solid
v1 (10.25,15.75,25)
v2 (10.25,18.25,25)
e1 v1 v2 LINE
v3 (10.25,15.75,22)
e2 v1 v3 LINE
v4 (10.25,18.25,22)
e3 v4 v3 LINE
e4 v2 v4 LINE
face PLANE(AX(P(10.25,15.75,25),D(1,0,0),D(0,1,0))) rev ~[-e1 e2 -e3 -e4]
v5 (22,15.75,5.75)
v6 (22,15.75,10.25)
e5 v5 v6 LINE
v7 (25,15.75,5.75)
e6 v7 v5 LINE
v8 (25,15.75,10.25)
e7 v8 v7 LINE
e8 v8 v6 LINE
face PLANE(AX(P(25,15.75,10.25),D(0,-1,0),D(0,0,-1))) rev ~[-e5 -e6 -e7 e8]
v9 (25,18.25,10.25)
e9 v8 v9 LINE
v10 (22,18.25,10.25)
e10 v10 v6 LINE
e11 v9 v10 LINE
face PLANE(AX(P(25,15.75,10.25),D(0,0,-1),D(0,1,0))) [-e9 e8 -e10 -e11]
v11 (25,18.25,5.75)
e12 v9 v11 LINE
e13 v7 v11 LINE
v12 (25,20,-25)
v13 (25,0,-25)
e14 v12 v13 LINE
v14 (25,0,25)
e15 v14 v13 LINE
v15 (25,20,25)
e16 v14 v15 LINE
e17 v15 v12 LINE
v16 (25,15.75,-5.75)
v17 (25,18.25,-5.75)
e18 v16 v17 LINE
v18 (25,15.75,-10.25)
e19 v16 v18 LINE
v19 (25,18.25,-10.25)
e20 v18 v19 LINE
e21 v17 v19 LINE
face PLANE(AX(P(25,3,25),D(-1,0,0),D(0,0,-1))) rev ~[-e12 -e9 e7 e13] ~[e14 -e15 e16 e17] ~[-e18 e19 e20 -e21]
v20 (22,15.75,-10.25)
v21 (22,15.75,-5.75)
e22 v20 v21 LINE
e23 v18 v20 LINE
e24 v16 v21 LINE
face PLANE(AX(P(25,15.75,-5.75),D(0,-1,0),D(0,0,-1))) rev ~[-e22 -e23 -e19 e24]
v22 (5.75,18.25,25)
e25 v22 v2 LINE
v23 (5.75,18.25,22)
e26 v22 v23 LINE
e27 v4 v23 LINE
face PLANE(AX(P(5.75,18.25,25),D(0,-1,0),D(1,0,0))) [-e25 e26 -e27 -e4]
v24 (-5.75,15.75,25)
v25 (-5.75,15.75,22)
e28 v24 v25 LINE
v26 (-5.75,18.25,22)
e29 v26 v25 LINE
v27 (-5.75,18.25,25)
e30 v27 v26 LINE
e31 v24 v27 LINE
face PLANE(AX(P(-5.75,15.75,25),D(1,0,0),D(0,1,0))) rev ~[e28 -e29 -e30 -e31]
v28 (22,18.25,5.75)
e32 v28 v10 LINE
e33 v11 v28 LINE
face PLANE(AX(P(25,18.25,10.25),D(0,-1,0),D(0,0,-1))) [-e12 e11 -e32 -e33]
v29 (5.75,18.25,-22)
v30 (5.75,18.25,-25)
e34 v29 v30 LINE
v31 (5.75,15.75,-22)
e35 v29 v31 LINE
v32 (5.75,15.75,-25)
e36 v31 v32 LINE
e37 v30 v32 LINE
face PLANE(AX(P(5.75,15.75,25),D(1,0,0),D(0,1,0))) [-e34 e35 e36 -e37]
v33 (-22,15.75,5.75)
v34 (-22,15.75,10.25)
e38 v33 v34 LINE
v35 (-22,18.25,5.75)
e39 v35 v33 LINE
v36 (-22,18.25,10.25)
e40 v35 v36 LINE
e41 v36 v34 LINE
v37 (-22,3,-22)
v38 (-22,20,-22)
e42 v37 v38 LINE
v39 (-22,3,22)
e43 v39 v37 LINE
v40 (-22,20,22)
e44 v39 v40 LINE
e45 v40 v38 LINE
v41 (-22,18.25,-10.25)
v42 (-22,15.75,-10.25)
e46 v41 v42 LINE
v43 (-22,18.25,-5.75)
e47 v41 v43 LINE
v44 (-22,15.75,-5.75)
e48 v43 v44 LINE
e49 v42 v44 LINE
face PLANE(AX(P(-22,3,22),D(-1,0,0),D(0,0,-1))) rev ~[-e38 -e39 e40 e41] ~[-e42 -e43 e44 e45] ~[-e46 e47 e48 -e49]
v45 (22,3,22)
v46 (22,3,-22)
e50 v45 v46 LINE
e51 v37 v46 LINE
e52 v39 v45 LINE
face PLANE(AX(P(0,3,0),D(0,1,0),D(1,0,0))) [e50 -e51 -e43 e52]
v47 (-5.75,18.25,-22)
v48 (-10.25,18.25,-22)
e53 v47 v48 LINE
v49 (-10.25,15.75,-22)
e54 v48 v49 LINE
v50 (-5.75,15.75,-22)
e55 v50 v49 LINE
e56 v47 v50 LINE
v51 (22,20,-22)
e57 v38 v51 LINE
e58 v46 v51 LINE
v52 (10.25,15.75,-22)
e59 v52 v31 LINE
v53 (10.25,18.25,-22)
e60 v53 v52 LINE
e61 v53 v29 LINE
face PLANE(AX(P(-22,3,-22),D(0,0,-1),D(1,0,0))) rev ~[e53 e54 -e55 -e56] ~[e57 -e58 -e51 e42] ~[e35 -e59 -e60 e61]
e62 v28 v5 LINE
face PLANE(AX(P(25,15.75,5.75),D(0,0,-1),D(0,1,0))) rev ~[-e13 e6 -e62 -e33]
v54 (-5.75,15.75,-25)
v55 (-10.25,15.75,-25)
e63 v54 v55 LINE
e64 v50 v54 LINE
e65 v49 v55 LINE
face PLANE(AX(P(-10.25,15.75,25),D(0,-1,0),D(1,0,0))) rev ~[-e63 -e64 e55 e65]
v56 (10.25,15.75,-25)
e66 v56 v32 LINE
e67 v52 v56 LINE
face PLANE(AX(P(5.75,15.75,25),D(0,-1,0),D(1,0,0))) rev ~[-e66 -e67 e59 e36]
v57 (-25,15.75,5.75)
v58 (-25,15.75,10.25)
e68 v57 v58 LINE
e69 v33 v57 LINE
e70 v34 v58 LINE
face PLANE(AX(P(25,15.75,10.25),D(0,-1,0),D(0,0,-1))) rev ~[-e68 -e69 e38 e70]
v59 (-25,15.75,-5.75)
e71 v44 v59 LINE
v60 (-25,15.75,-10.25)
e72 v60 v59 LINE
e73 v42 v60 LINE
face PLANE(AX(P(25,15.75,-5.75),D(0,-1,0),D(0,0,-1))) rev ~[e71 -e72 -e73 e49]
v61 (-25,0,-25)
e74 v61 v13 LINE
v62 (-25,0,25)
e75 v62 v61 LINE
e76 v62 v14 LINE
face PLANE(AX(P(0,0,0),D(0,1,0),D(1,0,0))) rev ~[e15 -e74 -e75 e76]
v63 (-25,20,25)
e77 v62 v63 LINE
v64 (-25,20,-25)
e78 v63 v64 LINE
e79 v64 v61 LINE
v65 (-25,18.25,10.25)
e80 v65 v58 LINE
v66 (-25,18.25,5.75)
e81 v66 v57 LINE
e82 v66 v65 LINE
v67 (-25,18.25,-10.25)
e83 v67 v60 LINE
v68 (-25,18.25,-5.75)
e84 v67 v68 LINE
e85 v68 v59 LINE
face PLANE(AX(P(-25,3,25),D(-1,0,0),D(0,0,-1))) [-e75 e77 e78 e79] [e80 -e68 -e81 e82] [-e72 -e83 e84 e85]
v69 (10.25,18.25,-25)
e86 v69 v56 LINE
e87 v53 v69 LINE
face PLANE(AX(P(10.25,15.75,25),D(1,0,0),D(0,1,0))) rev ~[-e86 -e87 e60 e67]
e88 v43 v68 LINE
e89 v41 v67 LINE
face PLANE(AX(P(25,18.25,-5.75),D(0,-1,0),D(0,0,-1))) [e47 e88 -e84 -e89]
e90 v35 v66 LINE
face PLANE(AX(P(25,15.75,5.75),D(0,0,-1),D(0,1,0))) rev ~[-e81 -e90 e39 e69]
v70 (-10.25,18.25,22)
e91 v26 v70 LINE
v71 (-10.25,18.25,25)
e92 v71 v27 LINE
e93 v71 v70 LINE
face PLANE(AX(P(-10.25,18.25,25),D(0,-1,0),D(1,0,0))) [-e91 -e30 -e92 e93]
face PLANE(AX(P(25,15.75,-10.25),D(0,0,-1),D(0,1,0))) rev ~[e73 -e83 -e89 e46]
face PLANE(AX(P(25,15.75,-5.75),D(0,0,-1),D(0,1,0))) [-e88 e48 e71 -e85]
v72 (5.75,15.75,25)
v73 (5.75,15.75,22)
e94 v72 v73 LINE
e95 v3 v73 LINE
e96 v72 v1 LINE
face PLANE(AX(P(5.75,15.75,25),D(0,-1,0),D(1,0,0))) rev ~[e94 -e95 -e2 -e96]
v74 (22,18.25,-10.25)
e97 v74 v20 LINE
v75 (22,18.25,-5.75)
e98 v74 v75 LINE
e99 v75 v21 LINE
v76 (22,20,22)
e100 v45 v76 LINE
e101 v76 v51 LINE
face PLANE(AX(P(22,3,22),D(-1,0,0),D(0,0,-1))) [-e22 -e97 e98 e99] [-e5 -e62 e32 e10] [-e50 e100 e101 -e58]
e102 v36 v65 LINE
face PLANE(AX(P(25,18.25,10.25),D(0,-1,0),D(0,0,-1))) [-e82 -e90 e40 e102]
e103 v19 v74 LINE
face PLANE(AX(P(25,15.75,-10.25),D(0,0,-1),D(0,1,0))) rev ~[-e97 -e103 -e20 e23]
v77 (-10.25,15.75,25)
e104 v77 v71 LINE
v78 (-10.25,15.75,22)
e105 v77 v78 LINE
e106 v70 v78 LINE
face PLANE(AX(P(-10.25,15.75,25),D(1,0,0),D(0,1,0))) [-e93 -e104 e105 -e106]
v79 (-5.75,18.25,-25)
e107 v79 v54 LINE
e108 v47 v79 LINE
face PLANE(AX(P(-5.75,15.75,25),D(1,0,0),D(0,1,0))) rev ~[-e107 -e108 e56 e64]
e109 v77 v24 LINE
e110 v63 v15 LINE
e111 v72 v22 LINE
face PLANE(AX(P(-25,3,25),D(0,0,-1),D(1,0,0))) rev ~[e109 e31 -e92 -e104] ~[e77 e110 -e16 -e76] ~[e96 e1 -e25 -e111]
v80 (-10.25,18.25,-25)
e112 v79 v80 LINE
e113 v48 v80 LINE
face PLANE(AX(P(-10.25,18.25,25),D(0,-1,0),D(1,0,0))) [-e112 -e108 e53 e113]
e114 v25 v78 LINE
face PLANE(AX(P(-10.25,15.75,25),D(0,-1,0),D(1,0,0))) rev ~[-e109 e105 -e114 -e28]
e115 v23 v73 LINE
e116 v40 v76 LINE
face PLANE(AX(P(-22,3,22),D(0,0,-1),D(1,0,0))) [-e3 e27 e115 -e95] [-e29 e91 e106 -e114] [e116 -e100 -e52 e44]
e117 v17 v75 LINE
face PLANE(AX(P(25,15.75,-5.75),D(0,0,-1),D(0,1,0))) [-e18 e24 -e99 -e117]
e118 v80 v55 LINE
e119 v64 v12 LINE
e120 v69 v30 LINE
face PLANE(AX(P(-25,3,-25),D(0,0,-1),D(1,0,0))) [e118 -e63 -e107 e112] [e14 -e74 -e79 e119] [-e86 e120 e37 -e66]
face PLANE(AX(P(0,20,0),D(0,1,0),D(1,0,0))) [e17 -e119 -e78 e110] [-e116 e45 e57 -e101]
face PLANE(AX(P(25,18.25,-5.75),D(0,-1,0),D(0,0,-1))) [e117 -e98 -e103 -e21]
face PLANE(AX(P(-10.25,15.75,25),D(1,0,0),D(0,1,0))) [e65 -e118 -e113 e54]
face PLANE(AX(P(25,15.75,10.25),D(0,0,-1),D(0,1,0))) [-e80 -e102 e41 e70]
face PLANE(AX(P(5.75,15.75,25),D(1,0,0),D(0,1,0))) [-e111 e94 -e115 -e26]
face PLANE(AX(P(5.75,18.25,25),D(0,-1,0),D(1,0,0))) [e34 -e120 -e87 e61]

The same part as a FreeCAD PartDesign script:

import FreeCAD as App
import Part
import Sketcher
from FreeCAD import Vector
Q = App.Units.Quantity


def add_polygon(sketch, points):
    """Adds a closed chain of lines whose ends are joined by coincident constraints."""
    first, n = sketch.GeometryCount, len(points)
    for a, b in zip(points, points[1:] + points[:1]):
        sketch.addGeometry(Part.LineSegment(App.Vector(*a, 0), App.Vector(*b, 0)), False)
    for i in range(n):
        sketch.addConstraint(Sketcher.Constraint("Coincident", first + i, 2, first + (i + 1) % n, 1))

doc = App.newDocument("Part")
body = doc.addObject("PartDesign::Body", "Body")

sketch1 = doc.addObject("Sketcher::SketchObject", "Sketch")
body.addObject(sketch1)
sketch1.AttachmentSupport = (doc.XZ_Plane, [""])
sketch1.MapMode = "FlatFace"
add_polygon(sketch1, [(-25, -25), (-25, 25), (25, 25), (25, -25)])
sketch1.addConstraint(Sketcher.Constraint("Vertical", 0))
sketch1.addConstraint(Sketcher.Constraint("Horizontal", 1))
sketch1.addConstraint(Sketcher.Constraint("Vertical", 2))
sketch1.addConstraint(Sketcher.Constraint("Horizontal", 3))
sketch1.addConstraint(Sketcher.Constraint("Symmetric", 0, 2, 2, 2, -1, 1))
sketch1.addConstraint(Sketcher.Constraint("Equal", 3, 0))
sketch1.addConstraint(Sketcher.Constraint("DistanceX", 1, 1, 1, 2, Q("50 mm")))
pad1 = doc.addObject("PartDesign::Pad", "Pad")
body.addObject(pad1)
pad1.Profile = sketch1
pad1.Length = 3
pad1.Reversed = True

sketch2 = doc.addObject("Sketcher::SketchObject", "Sketch001")
body.addObject(sketch2)
sketch2.AttachmentSupport = (doc.XZ_Plane, [""])
sketch2.MapMode = "FlatFace"
sketch2.AttachmentOffset = App.Placement(Vector(0, 0, -3), App.Rotation())
add_polygon(sketch2, [(-25, -25), (-25, 25), (25, 25), (25, -25)])
add_polygon(sketch2, [(22, 22), (-22, 22), (-22, -22), (22, -22)])
sketch2.addConstraint(Sketcher.Constraint("Vertical", 0))
sketch2.addConstraint(Sketcher.Constraint("Horizontal", 1))
sketch2.addConstraint(Sketcher.Constraint("Vertical", 2))
sketch2.addConstraint(Sketcher.Constraint("Horizontal", 3))
sketch2.addConstraint(Sketcher.Constraint("Horizontal", 4))
sketch2.addConstraint(Sketcher.Constraint("Vertical", 5))
sketch2.addConstraint(Sketcher.Constraint("Horizontal", 6))
sketch2.addConstraint(Sketcher.Constraint("Vertical", 7))
sketch2.addConstraint(Sketcher.Constraint("Symmetric", 0, 2, 2, 2, -1, 1))
sketch2.addConstraint(Sketcher.Constraint("Symmetric", 4, 2, 6, 2, -1, 1))
sketch2.addConstraint(Sketcher.Constraint("Equal", 3, 0))
sketch2.addConstraint(Sketcher.Constraint("Equal", 6, 5))
sketch2.addConstraint(Sketcher.Constraint("DistanceX", 1, 1, 1, 2, Q("50 mm")))
sketch2.addConstraint(Sketcher.Constraint("DistanceX", 4, 2, 4, 1, Q("44 mm")))
pad2 = doc.addObject("PartDesign::Pad", "Pad001")
body.addObject(pad2)
pad2.Profile = sketch2
pad2.Length = 17
pad2.Reversed = True

sketch3 = doc.addObject("Sketcher::SketchObject", "Sketch002")
body.addObject(sketch3)
sketch3.AttachmentSupport = (doc.XY_Plane, [""])
sketch3.MapMode = "FlatFace"
sketch3.AttachmentOffset = App.Placement(Vector(0, 0, 25), App.Rotation())
add_polygon(sketch3, [(-10.2, 18.2), (-10.2, 15.8), (-5.8, 15.8), (-5.8, 18.2)])
add_polygon(sketch3, [(5.8, 18.2), (5.8, 15.8), (10.2, 15.8), (10.2, 18.2)])
sketch3.addConstraint(Sketcher.Constraint("Vertical", 0))
sketch3.addConstraint(Sketcher.Constraint("Horizontal", 1))
sketch3.addConstraint(Sketcher.Constraint("Vertical", 2))
sketch3.addConstraint(Sketcher.Constraint("Horizontal", 3))
sketch3.addConstraint(Sketcher.Constraint("Vertical", 4))
sketch3.addConstraint(Sketcher.Constraint("Horizontal", 5))
sketch3.addConstraint(Sketcher.Constraint("Vertical", 6))
sketch3.addConstraint(Sketcher.Constraint("Horizontal", 7))
sketch3.addConstraint(Sketcher.Constraint("Symmetric", 1, 2, 4, 2, -2))
sketch3.addConstraint(Sketcher.Constraint("Symmetric", 3, 2, 6, 2, -2))
sketch3.addConstraint(Sketcher.Constraint("DistanceX", 1, 1, 1, 2, Q("4.5 mm")))
sketch3.addConstraint(Sketcher.Constraint("DistanceY", 0, 2, 0, 1, Q("2.5 mm")))
sketch3.addConstraint(Sketcher.Constraint("DistanceX", 0, 2, 4, 2, Q("16 mm")))
sketch3.addConstraint(Sketcher.Constraint("DistanceY", -1, 1, 0, 2, Q("15.75 mm")))
pocket1 = doc.addObject("PartDesign::Pocket", "Pocket")
body.addObject(pocket1)
pocket1.Profile = sketch3
pocket1.Type = "ThroughAll"

sketch4 = doc.addObject("Sketcher::SketchObject", "Sketch003")
body.addObject(sketch4)
sketch4.AttachmentSupport = (doc.YZ_Plane, [""])
sketch4.MapMode = "FlatFace"
sketch4.AttachmentOffset = App.Placement(Vector(0, 0, 25), App.Rotation())
add_polygon(sketch4, [(18.2, 10.2), (15.8, 10.2), (15.8, 5.8), (18.2, 5.8)])
add_polygon(sketch4, [(18.2, -5.8), (15.8, -5.8), (15.8, -10.2), (18.2, -10.2)])
sketch4.addConstraint(Sketcher.Constraint("Horizontal", 0))
sketch4.addConstraint(Sketcher.Constraint("Vertical", 1))
sketch4.addConstraint(Sketcher.Constraint("Horizontal", 2))
sketch4.addConstraint(Sketcher.Constraint("Vertical", 3))
sketch4.addConstraint(Sketcher.Constraint("Horizontal", 4))
sketch4.addConstraint(Sketcher.Constraint("Vertical", 5))
sketch4.addConstraint(Sketcher.Constraint("Horizontal", 6))
sketch4.addConstraint(Sketcher.Constraint("Vertical", 7))
sketch4.addConstraint(Sketcher.Constraint("Symmetric", 1, 2, 4, 2, -1))
sketch4.addConstraint(Sketcher.Constraint("Symmetric", 3, 2, 6, 2, -1))
sketch4.addConstraint(Sketcher.Constraint("DistanceX", 0, 2, 0, 1, Q("2.5 mm")))
sketch4.addConstraint(Sketcher.Constraint("DistanceY", 1, 2, 1, 1, Q("4.5 mm")))
sketch4.addConstraint(Sketcher.Constraint("DistanceY", 4, 2, 0, 2, Q("16 mm")))
sketch4.addConstraint(Sketcher.Constraint("DistanceX", -1, 1, 0, 2, Q("15.75 mm")))
pocket2 = doc.addObject("PartDesign::Pocket", "Pocket001")
body.addObject(pocket2)
pocket2.Profile = sketch4
pocket2.Type = "ThroughAll"

doc.recompute()
